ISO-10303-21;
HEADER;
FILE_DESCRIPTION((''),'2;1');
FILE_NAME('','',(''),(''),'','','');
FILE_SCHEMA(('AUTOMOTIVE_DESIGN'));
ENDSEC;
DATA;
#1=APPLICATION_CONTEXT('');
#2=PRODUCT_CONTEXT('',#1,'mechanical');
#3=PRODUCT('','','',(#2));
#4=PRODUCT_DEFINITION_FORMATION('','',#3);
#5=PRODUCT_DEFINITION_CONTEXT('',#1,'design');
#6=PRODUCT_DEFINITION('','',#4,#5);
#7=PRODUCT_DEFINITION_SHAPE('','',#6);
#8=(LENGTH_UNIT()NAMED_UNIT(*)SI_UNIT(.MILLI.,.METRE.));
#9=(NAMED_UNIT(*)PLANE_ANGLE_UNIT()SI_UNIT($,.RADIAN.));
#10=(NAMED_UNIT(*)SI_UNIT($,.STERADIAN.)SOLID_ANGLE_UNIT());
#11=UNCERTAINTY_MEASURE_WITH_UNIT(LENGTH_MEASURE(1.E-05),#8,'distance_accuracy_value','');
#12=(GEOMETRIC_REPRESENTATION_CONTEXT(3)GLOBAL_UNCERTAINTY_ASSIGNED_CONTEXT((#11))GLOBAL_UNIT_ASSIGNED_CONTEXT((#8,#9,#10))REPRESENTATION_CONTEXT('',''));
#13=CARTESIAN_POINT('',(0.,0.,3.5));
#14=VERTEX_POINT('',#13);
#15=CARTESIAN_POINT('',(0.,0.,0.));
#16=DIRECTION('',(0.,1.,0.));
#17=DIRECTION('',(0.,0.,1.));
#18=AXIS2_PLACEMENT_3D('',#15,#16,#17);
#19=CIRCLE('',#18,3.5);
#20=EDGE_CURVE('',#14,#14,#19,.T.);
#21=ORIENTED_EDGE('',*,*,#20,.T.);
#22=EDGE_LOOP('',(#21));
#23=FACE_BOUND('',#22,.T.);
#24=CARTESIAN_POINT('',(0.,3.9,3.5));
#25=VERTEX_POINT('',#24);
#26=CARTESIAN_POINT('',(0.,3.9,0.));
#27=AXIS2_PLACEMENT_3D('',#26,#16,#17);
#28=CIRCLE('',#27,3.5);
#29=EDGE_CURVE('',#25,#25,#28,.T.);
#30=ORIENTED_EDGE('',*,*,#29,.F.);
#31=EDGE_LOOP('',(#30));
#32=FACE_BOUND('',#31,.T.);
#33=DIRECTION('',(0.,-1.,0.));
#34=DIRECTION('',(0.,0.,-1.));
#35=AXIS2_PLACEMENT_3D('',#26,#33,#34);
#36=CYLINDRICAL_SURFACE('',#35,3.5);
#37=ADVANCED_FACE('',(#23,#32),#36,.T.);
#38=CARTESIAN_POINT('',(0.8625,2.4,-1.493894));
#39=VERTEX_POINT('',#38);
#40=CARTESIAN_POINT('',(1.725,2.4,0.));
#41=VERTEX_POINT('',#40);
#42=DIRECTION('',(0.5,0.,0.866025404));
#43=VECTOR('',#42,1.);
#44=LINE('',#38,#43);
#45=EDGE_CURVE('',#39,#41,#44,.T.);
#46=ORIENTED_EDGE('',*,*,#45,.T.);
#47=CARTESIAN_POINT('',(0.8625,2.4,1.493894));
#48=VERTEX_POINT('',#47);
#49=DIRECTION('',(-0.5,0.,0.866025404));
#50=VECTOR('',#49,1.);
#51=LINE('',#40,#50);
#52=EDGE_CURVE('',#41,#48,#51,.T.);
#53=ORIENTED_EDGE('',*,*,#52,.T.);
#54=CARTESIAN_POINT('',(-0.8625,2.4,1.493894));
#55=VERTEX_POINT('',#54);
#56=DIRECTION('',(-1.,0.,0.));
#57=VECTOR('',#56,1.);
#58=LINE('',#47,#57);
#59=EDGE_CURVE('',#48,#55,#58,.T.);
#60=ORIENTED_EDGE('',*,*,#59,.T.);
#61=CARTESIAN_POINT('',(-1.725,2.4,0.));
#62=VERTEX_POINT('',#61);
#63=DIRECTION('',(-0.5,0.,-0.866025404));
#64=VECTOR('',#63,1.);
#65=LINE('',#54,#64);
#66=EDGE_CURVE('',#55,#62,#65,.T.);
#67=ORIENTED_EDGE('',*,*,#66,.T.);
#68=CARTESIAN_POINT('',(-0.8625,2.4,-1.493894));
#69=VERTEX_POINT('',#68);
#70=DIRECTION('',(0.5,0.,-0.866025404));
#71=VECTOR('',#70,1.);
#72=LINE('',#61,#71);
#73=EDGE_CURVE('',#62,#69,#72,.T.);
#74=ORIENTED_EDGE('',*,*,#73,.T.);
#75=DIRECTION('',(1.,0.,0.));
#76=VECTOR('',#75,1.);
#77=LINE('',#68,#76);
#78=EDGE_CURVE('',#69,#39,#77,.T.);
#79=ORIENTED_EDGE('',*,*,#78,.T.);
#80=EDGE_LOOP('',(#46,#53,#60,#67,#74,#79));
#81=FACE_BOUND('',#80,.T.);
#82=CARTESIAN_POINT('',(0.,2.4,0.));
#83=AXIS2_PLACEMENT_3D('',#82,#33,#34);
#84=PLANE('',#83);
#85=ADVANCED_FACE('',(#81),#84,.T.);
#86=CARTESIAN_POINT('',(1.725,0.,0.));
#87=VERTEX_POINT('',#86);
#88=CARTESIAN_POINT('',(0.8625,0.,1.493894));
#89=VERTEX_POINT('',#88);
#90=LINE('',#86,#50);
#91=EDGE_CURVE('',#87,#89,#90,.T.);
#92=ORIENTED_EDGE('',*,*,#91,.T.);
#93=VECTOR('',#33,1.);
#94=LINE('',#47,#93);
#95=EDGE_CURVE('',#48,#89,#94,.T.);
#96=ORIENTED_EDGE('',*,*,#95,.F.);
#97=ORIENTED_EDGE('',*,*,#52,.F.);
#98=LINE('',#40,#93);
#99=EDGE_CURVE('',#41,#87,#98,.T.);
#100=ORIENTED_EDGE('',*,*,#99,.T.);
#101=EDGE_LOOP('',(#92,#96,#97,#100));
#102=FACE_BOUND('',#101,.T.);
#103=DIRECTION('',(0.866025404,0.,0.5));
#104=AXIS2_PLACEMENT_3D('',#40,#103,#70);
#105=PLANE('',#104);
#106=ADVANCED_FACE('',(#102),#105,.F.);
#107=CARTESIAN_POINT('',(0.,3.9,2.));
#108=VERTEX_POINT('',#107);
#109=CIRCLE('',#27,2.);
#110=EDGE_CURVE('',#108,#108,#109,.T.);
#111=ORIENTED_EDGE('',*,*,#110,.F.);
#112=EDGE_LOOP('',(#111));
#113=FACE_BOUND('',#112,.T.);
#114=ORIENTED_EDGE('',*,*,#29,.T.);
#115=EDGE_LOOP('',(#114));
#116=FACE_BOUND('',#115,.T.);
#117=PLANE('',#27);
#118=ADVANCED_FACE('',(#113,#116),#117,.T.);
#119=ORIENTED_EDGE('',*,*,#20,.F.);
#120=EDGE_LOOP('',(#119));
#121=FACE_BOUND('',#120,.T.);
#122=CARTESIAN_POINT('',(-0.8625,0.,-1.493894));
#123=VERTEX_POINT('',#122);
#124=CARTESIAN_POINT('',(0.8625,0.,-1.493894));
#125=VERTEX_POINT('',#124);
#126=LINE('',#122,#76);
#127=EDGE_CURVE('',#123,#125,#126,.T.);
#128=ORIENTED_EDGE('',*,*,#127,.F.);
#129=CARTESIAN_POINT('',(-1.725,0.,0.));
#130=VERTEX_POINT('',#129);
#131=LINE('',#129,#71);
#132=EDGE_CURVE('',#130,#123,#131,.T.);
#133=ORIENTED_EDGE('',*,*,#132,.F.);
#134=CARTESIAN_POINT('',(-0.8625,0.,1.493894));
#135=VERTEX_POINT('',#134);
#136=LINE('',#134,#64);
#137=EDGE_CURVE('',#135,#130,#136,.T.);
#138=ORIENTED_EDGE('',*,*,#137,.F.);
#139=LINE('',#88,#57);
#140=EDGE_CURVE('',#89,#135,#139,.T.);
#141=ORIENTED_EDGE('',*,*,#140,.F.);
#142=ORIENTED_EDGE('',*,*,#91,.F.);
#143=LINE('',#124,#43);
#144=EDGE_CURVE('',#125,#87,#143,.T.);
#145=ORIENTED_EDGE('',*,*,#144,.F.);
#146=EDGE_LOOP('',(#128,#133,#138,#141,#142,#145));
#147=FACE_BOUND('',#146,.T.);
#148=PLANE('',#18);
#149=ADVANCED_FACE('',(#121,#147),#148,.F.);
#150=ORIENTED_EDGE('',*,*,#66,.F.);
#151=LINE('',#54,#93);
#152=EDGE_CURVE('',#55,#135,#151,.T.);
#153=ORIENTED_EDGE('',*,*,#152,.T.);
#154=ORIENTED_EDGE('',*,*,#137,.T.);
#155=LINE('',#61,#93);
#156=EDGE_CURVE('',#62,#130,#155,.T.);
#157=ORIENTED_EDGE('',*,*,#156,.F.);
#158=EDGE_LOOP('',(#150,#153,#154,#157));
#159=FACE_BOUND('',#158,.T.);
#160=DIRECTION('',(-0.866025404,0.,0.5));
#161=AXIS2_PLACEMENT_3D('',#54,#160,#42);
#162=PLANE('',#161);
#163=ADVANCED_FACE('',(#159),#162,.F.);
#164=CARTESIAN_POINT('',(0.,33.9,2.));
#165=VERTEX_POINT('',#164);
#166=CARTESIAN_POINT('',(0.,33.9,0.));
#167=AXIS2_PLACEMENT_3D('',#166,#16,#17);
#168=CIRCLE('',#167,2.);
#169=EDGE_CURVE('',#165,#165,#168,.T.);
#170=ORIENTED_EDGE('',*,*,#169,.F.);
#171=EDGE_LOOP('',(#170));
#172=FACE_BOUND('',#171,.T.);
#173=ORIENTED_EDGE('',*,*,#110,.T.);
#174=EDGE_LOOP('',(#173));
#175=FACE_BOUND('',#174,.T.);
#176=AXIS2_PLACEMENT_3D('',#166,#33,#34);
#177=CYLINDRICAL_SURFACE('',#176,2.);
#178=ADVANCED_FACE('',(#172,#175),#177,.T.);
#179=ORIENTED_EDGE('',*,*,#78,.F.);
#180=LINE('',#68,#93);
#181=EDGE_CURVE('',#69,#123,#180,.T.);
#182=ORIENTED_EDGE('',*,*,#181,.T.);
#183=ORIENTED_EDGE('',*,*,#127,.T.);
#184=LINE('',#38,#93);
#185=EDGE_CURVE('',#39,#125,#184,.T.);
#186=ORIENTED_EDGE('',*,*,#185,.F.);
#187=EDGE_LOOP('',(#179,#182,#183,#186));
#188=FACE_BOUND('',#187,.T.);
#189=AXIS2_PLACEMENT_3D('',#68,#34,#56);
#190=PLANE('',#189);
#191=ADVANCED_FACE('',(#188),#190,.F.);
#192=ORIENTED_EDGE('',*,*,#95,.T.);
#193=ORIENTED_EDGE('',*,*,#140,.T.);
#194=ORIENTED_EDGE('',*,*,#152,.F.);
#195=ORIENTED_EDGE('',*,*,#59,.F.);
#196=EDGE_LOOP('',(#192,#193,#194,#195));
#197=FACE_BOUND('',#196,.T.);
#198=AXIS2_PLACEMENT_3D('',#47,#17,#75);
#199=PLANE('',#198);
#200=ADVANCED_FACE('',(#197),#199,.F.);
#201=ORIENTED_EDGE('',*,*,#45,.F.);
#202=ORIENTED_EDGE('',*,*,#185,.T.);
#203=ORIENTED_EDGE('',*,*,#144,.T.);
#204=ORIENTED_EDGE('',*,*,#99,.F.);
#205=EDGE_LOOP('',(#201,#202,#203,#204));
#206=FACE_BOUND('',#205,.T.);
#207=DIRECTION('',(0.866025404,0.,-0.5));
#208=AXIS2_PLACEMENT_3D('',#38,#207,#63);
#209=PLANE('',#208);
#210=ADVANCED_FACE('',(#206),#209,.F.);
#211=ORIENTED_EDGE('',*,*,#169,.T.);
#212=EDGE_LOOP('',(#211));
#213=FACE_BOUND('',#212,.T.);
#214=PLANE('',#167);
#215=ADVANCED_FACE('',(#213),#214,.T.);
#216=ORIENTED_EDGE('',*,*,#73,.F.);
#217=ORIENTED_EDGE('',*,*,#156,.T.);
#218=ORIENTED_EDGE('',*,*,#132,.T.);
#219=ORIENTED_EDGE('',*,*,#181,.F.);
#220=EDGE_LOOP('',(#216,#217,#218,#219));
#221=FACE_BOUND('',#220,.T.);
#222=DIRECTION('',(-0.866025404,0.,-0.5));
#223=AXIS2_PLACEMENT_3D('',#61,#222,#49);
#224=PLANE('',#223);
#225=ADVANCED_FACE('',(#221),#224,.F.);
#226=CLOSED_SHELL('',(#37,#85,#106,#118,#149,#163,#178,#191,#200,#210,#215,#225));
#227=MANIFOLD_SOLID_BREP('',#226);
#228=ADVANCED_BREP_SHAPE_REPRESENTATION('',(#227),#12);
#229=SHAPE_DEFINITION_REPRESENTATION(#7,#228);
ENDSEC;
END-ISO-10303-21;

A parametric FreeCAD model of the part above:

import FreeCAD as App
import Part
import Sketcher
from FreeCAD import Vector
Q = App.Units.Quantity


def add_polygon(sketch, points):
    """Adds a closed chain of lines whose ends are joined by coincident constraints."""
    first, n = sketch.GeometryCount, len(points)
    for a, b in zip(points, points[1:] + points[:1]):
        sketch.addGeometry(Part.LineSegment(App.Vector(*a, 0), App.Vector(*b, 0)), False)
    for i in range(n):
        sketch.addConstraint(Sketcher.Constraint("Coincident", first + i, 2, first + (i + 1) % n, 1))

doc = App.newDocument("Part")
body = doc.addObject("PartDesign::Body", "Body")

sketch1 = body.newObject("Sketcher::SketchObject", "Sketch")
sketch1.AttachmentSupport = (doc.getObject("XZ_Plane"), [""])
sketch1.MapMode = "FlatFace"
sketch1.addGeometry(Part.Circle(Vector(0, 0, 0), Vector(0, 0, 1), 3.5), False)
sketch1.addConstraint([
    Sketcher.Constraint("Coincident", 0, 3, -1, 1),
    Sketcher.Constraint("Diameter", 0, Q("7 mm")),
])
pad1 = body.newObject("PartDesign::Pad", "Pad")
pad1.Profile = sketch1
pad1.Length = 3.9
pad1.Reversed = True

sketch2 = body.newObject("Sketcher::SketchObject", "Sketch001")
sketch2.AttachmentSupport = (doc.getObject("XZ_Plane"), [""])
sketch2.MapMode = "FlatFace"
sketch2.AttachmentOffset = App.Placement(Vector(0, 0, -3.9), App.Rotation())
sketch2.addGeometry(Part.Circle(Vector(0, 0, 0), Vector(0, 0, 1), 2), False)
sketch2.addConstraint([
    Sketcher.Constraint("Coincident", 0, 3, -1, 1),
    Sketcher.Constraint("Diameter", 0, Q("4 mm")),
])
pad2 = body.newObject("PartDesign::Pad", "Pad001")
pad2.Profile = sketch2
pad2.Length = 30
pad2.Reversed = True

sketch3 = body.newObject("Sketcher::SketchObject", "Sketch002")
sketch3.AttachmentSupport = (doc.getObject("XZ_Plane"), [""])
sketch3.MapMode = "FlatFace"
add_polygon(sketch3, [(1.7, 0), (0.9, 1.5), (-0.9, 1.5), (-1.7, 0), (-0.9, -1.5), (0.9, -1.5)])
sketch3.addConstraint([
    Sketcher.Constraint("Horizontal", 1),
    Sketcher.Constraint("Horizontal", 4),
    Sketcher.Constraint("Symmetric", 0, 2, 3, 2, -1, 1),
    Sketcher.Constraint("Symmetric", 2, 2, 5, 2, -1, 1),
    Sketcher.Constraint("PointOnObject", 2, 2, -1),
    Sketcher.Constraint("Parallel", 2, 5),
    Sketcher.Constraint("Vertical", 1, 2, 3, 2),
    Sketcher.Constraint("Angle", 0, Q("120 deg")),
    Sketcher.Constraint("DistanceX", 1, 2, 1, 1, Q("1.725 mm")),
    Sketcher.Constraint("DistanceX", 2, 2, 5, 2, Q("3.45 mm")),
])
pocket1 = body.newObject("PartDesign::Pocket", "Pocket")
pocket1.Profile = sketch3
pocket1.Length = 2.4

doc.recompute()
